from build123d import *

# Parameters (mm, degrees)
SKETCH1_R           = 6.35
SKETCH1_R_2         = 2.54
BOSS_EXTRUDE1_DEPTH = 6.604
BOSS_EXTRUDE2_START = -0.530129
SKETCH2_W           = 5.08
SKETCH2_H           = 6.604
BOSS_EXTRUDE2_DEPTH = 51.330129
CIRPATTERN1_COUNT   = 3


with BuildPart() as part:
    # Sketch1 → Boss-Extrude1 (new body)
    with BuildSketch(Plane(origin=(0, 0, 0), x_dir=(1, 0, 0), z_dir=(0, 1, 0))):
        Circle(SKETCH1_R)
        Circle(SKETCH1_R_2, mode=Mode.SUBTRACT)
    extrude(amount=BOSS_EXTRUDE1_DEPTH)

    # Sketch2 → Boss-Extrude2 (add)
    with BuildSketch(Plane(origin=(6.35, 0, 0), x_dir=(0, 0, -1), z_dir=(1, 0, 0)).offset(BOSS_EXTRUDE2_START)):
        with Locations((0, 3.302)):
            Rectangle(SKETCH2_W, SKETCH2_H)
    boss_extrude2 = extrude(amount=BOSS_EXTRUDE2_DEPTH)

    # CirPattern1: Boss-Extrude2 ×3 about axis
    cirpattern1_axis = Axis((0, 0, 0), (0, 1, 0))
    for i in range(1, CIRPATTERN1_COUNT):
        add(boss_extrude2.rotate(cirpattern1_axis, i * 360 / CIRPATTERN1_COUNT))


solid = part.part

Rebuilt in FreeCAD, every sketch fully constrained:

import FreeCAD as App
import Part
import Sketcher
Q = App.Units.Quantity


def add_polygon(sketch, points):
    """Adds a closed chain of lines whose ends are joined by coincident constraints."""
    first, n = sketch.GeometryCount, len(points)
    for a, b in zip(points, points[1:] + points[:1]):
        sketch.addGeometry(Part.LineSegment(App.Vector(*a, 0), App.Vector(*b, 0)), False)
    for i in range(n):
        sketch.addConstraint(Sketcher.Constraint("Coincident", first + i, 2, first + (i + 1) % n, 1))

doc = App.newDocument("Part")
body = doc.addObject("PartDesign::Body", "Body")

# Sketch on XZ plane
sketch1 = doc.addObject("Sketcher::SketchObject", "Sketch")
body.addObject(sketch1)
sketch1.AttachmentSupport = (doc.XZ_Plane, [""])
sketch1.MapMode = "FlatFace"
sketch1.addGeometry(Part.Circle(App.Vector(0, 0, 0), App.Vector(0, 0, 1), 6.3), False)
sketch1.addGeometry(Part.Circle(App.Vector(0, 0, 0), App.Vector(0, 0, 1), 2.5), False)
sketch1.addConstraint(Sketcher.Constraint("Coincident", 0, 3, -1, 1))
sketch1.addConstraint(Sketcher.Constraint("Coincident", 1, 3, -1, 1))
sketch1.addConstraint(Sketcher.Constraint("Diameter", 0, Q("0.5 in")))
sketch1.addConstraint(Sketcher.Constraint("Diameter", 1, Q("0.2 in")))
pad1 = doc.addObject("PartDesign::Pad", "Pad")
body.addObject(pad1)
pad1.Profile = sketch1
pad1.Length = Q("0.26 in")
pad1.Reversed = True

# Sketch on YZ plane
sketch2 = doc.addObject("Sketcher::SketchObject", "Sketch001")
body.addObject(sketch2)
sketch2.AttachmentSupport = (doc.YZ_Plane, [""])
sketch2.MapMode = "FlatFace"
sketch2.AttachmentOffset = App.Placement(App.Vector(0, 0, 5.819871), App.Rotation())
add_polygon(sketch2, [(7, 3), (0, 3), (0, -3), (7, -3)])  # lines 0-3
sketch2.addConstraint(Sketcher.Constraint("Horizontal", 0))
sketch2.addConstraint(Sketcher.Constraint("Vertical", 1))
sketch2.addConstraint(Sketcher.Constraint("Horizontal", 2))
sketch2.addConstraint(Sketcher.Constraint("Vertical", 3))
sketch2.addConstraint(Sketcher.Constraint("Symmetric", 0, 2, 1, 2, -1, 1))
sketch2.addConstraint(Sketcher.Constraint("DistanceY", 1, 2, 1, 1, Q("0.2 in")))
sketch2.addConstraint(Sketcher.Constraint("DistanceX", 0, 2, 0, 1, Q("0.26 in")))
pad2 = doc.addObject("PartDesign::Pad", "Pad001")
body.addObject(pad2)
pad2.Profile = sketch2
pad2.Length = 51.330129
doc.recompute()

polarpattern = doc.addObject("PartDesign::PolarPattern", "PolarPattern")
body.addObject(polarpattern)
polarpattern.Originals = [pad2]
polarpattern.Axis = (doc.Y_Axis, [""])
polarpattern.Angle = 360
polarpattern.Occurrences = 3
body.Tip = polarpattern

doc.recompute()
